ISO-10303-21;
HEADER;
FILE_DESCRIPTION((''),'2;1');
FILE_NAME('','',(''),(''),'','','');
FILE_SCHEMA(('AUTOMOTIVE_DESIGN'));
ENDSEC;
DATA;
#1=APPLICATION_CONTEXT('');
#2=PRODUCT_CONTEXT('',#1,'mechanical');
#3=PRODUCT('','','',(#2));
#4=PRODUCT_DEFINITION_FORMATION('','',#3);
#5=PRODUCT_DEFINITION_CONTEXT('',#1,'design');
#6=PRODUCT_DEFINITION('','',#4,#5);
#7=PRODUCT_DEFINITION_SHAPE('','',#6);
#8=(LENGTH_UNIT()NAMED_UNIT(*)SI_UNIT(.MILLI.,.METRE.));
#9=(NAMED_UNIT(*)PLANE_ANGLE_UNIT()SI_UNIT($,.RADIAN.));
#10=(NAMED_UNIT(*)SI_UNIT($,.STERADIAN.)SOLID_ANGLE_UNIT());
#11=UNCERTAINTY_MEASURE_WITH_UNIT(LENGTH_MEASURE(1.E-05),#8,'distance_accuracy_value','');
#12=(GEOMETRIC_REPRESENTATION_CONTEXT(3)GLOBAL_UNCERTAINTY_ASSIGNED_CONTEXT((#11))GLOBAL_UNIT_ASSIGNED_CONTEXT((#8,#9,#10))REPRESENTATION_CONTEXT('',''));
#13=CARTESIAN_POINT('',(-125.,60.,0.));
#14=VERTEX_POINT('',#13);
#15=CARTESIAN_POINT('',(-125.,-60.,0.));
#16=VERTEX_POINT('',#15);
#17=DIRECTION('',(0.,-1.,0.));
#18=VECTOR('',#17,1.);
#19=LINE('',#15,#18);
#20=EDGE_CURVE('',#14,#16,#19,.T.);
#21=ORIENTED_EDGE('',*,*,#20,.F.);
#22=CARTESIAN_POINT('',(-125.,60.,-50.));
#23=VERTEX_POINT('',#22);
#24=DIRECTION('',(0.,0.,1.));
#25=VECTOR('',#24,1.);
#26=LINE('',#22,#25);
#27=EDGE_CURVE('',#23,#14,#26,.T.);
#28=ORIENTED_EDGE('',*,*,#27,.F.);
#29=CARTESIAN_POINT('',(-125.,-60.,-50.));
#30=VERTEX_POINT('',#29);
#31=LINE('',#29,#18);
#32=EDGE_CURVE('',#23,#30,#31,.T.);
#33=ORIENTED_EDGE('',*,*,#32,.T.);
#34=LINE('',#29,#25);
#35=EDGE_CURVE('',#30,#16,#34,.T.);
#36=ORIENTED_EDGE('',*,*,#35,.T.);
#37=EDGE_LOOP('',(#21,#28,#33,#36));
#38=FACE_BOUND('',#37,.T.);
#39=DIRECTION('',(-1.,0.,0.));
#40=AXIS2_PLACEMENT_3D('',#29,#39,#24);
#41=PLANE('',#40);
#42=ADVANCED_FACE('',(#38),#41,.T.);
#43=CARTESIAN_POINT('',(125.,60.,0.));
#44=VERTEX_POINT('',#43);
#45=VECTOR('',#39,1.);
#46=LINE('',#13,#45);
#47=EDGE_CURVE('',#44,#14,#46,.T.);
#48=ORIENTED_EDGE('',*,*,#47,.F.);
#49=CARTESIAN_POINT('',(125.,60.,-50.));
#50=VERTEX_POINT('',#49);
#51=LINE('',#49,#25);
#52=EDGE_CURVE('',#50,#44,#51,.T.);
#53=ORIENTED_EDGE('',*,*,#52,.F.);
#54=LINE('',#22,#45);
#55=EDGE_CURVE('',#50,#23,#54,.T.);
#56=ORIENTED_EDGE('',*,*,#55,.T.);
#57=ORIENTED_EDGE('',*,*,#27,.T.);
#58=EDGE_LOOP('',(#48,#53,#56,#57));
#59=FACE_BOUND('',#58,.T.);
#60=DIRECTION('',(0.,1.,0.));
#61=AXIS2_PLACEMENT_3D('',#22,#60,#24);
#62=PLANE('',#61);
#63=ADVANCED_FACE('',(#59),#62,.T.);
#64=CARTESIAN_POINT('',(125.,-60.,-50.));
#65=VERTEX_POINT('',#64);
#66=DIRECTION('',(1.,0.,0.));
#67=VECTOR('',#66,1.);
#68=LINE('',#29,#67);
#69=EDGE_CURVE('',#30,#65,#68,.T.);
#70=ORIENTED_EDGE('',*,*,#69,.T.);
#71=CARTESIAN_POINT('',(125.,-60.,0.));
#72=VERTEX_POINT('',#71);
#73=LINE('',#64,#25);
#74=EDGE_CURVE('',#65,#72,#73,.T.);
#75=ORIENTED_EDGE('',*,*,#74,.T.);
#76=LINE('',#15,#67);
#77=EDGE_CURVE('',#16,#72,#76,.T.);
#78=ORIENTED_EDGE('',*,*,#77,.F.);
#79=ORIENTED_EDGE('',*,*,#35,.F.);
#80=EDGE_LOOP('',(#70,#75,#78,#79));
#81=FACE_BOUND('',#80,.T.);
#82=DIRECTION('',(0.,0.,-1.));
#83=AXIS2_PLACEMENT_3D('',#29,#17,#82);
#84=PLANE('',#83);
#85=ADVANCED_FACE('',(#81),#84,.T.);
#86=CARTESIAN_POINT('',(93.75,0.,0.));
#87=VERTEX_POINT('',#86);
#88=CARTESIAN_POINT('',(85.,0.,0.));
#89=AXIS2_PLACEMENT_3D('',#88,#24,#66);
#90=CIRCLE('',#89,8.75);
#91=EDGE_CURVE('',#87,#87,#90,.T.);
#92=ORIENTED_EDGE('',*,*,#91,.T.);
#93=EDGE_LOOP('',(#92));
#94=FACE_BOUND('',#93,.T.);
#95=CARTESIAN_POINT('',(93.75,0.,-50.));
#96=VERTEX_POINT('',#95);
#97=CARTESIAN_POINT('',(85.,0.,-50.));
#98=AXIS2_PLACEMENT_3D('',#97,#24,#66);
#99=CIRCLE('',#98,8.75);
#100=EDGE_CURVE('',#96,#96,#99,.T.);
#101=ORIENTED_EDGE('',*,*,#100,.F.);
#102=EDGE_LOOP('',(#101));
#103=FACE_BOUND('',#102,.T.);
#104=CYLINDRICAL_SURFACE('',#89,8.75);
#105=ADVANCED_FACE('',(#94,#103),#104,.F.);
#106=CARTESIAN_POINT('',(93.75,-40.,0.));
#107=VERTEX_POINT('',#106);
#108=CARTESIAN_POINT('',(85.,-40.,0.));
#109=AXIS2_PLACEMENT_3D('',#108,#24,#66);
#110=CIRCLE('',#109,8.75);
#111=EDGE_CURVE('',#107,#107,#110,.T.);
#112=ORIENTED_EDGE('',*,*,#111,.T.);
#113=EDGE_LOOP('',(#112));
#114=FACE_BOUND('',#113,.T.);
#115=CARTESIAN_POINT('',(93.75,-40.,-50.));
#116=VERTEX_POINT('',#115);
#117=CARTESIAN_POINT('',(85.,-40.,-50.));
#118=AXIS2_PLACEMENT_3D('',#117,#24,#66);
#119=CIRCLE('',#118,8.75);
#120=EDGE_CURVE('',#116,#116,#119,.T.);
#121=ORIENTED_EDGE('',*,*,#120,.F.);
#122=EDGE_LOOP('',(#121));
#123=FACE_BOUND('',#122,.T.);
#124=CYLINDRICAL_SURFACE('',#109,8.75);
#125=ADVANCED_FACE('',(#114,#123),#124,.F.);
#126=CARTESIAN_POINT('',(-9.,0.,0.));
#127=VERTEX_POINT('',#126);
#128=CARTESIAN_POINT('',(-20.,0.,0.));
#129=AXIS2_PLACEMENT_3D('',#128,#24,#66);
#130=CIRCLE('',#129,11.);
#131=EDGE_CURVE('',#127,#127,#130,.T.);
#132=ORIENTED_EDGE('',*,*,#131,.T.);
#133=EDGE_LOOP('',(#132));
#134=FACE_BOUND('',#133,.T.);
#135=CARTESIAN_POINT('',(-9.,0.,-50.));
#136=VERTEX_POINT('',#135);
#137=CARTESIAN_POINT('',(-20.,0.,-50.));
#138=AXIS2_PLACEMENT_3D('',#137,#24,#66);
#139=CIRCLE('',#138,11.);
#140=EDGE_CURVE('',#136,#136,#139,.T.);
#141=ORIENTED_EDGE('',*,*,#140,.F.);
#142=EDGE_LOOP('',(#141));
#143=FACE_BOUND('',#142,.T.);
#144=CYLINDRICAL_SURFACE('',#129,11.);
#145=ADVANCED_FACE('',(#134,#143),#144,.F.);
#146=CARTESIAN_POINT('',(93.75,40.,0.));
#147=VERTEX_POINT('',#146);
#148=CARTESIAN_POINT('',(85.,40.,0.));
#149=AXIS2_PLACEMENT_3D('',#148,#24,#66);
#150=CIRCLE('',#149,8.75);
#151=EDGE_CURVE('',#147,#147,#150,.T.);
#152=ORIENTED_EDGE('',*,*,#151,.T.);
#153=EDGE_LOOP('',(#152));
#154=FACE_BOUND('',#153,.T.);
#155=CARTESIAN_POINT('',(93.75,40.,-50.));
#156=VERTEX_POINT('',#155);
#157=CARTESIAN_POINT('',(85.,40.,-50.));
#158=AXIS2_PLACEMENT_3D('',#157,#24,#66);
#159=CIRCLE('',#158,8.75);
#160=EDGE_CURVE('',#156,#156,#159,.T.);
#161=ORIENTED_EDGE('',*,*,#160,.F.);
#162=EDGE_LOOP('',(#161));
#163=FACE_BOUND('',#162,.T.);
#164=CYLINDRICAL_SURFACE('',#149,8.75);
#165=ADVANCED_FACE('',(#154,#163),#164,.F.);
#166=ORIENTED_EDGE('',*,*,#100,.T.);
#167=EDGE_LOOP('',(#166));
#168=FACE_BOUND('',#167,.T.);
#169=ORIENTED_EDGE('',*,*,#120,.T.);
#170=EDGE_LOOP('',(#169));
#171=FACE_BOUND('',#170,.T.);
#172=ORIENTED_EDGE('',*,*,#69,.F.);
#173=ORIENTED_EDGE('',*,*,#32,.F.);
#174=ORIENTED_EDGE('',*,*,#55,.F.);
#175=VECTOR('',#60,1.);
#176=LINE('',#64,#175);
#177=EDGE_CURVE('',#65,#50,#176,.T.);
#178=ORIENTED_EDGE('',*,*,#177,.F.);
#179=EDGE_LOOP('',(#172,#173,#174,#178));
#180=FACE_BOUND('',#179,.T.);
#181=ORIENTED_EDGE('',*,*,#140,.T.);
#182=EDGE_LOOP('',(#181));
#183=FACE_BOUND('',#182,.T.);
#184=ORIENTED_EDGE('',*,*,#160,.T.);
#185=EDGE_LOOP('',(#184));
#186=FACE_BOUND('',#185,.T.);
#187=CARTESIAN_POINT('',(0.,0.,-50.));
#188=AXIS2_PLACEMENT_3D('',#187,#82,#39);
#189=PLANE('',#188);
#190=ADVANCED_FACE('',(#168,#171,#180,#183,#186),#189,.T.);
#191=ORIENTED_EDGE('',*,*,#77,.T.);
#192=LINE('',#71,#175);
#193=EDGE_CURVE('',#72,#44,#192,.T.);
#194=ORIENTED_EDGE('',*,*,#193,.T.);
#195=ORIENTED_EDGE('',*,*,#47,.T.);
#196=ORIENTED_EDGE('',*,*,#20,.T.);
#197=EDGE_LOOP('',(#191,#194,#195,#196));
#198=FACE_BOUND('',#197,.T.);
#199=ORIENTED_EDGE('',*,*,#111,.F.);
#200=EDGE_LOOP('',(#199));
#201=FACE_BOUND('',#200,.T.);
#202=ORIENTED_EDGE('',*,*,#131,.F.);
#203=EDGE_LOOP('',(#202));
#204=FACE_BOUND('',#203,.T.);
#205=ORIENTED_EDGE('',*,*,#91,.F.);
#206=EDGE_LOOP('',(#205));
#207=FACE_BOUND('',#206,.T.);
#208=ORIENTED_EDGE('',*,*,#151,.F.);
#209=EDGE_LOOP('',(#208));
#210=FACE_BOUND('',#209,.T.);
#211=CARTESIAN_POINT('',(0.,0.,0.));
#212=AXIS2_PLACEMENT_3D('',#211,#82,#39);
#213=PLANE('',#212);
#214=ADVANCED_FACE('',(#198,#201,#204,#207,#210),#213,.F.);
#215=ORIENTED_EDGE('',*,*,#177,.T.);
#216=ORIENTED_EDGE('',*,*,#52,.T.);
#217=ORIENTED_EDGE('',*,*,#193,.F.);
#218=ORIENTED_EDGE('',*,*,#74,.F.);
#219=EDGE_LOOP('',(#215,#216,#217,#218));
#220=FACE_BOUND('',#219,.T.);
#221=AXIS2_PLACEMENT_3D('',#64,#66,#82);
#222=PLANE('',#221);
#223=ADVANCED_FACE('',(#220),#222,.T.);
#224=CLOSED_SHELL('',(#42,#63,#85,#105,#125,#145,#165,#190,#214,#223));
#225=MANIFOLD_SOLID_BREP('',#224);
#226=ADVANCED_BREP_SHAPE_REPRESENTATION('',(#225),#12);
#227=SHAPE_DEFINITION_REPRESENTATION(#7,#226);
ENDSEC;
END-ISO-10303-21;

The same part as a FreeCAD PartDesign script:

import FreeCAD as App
import Part
import Sketcher
from FreeCAD import Vector

doc = App.newDocument("Part")
body = doc.addObject("PartDesign::Body", "Body")

sketch1 = body.newObject("Sketcher::SketchObject", "Sketch")
sketch1.AttachmentSupport = (doc.getObject("XY_Plane"), [""])
sketch1.MapMode = "FlatFace"
sketch1.addGeometry(Part.LineSegment(Vector(-125, 60, 0), Vector(-125, -60, 0)), False)
sketch1.addGeometry(Part.LineSegment(Vector(-125, -60, 0), Vector(125, -60, 0)), False)
sketch1.addGeometry(Part.LineSegment(Vector(125, -60, 0), Vector(125, 60, 0)), False)
sketch1.addGeometry(Part.LineSegment(Vector(125, 60, 0), Vector(-125, 60, 0)), False)
sketch1.addConstraint(Sketcher.Constraint("Coincident", 0, 2, 1, 1))
sketch1.addConstraint(Sketcher.Constraint("Coincident", 1, 2, 2, 1))
sketch1.addConstraint(Sketcher.Constraint("Coincident", 2, 2, 3, 1))
sketch1.addConstraint(Sketcher.Constraint("Coincident", 3, 2, 0, 1))
sketch1.addConstraint(Sketcher.Constraint("Vertical", 0))
sketch1.addConstraint(Sketcher.Constraint("Horizontal", 1))
sketch1.addConstraint(Sketcher.Constraint("Vertical", 2))
sketch1.addConstraint(Sketcher.Constraint("Horizontal", 3))
sketch1.addConstraint(Sketcher.Constraint("Symmetric", 0, 2, 2, 2, -1, 1))
sketch1.addConstraint(Sketcher.Constraint("DistanceX", 1, 1, 1, 2, 250.0))
sketch1.addConstraint(Sketcher.Constraint("DistanceY", 0, 2, 0, 1, 120.0))
pad1 = body.newObject("PartDesign::Pad", "Pad")
pad1.Profile = sketch1
pad1.Length = 50
pad1.Reversed = True

sketch2 = body.newObject("Sketcher::SketchObject", "Sketch001")
sketch2.AttachmentSupport = (doc.getObject("XY_Plane"), [""])
sketch2.MapMode = "FlatFace"
sketch2.addGeometry(Part.Circle(Vector(-20, 0, 0), Vector(0, 0, 1), 11), False)
sketch2.addConstraint(Sketcher.Constraint("PointOnObject", 0, 3, -1))
sketch2.addConstraint(Sketcher.Constraint("Diameter", 0, 22.0))
sketch2.addConstraint(Sketcher.Constraint("DistanceX", 0, 3, -1, 1, 20.0))
doc.recompute()
hole = body.newObject("PartDesign::Hole", "Hole")
hole.Profile = sketch2
hole.ThreadType = "None"
hole.Diameter = 22
hole.DepthType = "ThroughAll"

sketch3 = body.newObject("Sketcher::SketchObject", "Sketch002")
sketch3.AttachmentSupport = (doc.getObject("XY_Plane"), [""])
sketch3.MapMode = "FlatFace"
sketch3.addGeometry(Part.Circle(Vector(85, 0, 0), Vector(0, 0, 1), 9), False)
sketch3.addConstraint(Sketcher.Constraint("PointOnObject", 0, 3, -1))
sketch3.addConstraint(Sketcher.Constraint("Diameter", 0, 17.5))
sketch3.addConstraint(Sketcher.Constraint("DistanceX", -1, 1, 0, 3, 85.0))
doc.recompute()
hole2 = body.newObject("PartDesign::Hole", "Hole001")
hole2.Profile = sketch3
hole2.ThreadType = "None"
hole2.Diameter = 17.5
hole2.DepthType = "ThroughAll"
doc.recompute()

linearpattern = body.newObject("PartDesign::LinearPattern", "LinearPattern")
linearpattern.Originals = [hole2]
linearpattern.Direction = (doc.getObject("Y_Axis"), [""])
linearpattern.Mode = "offset"
linearpattern.Offset = 40
linearpattern.Occurrences = 2
linearpattern.Reversed = True
body.Tip = linearpattern
doc.recompute()

linearpattern2 = body.newObject("PartDesign::LinearPattern", "LinearPattern001")
linearpattern2.Originals = [hole2]
linearpattern2.Direction = (doc.getObject("Y_Axis"), [""])
linearpattern2.Mode = "offset"
linearpattern2.Offset = 40
linearpattern2.Occurrences = 2
body.Tip = linearpattern2

doc.recompute()
